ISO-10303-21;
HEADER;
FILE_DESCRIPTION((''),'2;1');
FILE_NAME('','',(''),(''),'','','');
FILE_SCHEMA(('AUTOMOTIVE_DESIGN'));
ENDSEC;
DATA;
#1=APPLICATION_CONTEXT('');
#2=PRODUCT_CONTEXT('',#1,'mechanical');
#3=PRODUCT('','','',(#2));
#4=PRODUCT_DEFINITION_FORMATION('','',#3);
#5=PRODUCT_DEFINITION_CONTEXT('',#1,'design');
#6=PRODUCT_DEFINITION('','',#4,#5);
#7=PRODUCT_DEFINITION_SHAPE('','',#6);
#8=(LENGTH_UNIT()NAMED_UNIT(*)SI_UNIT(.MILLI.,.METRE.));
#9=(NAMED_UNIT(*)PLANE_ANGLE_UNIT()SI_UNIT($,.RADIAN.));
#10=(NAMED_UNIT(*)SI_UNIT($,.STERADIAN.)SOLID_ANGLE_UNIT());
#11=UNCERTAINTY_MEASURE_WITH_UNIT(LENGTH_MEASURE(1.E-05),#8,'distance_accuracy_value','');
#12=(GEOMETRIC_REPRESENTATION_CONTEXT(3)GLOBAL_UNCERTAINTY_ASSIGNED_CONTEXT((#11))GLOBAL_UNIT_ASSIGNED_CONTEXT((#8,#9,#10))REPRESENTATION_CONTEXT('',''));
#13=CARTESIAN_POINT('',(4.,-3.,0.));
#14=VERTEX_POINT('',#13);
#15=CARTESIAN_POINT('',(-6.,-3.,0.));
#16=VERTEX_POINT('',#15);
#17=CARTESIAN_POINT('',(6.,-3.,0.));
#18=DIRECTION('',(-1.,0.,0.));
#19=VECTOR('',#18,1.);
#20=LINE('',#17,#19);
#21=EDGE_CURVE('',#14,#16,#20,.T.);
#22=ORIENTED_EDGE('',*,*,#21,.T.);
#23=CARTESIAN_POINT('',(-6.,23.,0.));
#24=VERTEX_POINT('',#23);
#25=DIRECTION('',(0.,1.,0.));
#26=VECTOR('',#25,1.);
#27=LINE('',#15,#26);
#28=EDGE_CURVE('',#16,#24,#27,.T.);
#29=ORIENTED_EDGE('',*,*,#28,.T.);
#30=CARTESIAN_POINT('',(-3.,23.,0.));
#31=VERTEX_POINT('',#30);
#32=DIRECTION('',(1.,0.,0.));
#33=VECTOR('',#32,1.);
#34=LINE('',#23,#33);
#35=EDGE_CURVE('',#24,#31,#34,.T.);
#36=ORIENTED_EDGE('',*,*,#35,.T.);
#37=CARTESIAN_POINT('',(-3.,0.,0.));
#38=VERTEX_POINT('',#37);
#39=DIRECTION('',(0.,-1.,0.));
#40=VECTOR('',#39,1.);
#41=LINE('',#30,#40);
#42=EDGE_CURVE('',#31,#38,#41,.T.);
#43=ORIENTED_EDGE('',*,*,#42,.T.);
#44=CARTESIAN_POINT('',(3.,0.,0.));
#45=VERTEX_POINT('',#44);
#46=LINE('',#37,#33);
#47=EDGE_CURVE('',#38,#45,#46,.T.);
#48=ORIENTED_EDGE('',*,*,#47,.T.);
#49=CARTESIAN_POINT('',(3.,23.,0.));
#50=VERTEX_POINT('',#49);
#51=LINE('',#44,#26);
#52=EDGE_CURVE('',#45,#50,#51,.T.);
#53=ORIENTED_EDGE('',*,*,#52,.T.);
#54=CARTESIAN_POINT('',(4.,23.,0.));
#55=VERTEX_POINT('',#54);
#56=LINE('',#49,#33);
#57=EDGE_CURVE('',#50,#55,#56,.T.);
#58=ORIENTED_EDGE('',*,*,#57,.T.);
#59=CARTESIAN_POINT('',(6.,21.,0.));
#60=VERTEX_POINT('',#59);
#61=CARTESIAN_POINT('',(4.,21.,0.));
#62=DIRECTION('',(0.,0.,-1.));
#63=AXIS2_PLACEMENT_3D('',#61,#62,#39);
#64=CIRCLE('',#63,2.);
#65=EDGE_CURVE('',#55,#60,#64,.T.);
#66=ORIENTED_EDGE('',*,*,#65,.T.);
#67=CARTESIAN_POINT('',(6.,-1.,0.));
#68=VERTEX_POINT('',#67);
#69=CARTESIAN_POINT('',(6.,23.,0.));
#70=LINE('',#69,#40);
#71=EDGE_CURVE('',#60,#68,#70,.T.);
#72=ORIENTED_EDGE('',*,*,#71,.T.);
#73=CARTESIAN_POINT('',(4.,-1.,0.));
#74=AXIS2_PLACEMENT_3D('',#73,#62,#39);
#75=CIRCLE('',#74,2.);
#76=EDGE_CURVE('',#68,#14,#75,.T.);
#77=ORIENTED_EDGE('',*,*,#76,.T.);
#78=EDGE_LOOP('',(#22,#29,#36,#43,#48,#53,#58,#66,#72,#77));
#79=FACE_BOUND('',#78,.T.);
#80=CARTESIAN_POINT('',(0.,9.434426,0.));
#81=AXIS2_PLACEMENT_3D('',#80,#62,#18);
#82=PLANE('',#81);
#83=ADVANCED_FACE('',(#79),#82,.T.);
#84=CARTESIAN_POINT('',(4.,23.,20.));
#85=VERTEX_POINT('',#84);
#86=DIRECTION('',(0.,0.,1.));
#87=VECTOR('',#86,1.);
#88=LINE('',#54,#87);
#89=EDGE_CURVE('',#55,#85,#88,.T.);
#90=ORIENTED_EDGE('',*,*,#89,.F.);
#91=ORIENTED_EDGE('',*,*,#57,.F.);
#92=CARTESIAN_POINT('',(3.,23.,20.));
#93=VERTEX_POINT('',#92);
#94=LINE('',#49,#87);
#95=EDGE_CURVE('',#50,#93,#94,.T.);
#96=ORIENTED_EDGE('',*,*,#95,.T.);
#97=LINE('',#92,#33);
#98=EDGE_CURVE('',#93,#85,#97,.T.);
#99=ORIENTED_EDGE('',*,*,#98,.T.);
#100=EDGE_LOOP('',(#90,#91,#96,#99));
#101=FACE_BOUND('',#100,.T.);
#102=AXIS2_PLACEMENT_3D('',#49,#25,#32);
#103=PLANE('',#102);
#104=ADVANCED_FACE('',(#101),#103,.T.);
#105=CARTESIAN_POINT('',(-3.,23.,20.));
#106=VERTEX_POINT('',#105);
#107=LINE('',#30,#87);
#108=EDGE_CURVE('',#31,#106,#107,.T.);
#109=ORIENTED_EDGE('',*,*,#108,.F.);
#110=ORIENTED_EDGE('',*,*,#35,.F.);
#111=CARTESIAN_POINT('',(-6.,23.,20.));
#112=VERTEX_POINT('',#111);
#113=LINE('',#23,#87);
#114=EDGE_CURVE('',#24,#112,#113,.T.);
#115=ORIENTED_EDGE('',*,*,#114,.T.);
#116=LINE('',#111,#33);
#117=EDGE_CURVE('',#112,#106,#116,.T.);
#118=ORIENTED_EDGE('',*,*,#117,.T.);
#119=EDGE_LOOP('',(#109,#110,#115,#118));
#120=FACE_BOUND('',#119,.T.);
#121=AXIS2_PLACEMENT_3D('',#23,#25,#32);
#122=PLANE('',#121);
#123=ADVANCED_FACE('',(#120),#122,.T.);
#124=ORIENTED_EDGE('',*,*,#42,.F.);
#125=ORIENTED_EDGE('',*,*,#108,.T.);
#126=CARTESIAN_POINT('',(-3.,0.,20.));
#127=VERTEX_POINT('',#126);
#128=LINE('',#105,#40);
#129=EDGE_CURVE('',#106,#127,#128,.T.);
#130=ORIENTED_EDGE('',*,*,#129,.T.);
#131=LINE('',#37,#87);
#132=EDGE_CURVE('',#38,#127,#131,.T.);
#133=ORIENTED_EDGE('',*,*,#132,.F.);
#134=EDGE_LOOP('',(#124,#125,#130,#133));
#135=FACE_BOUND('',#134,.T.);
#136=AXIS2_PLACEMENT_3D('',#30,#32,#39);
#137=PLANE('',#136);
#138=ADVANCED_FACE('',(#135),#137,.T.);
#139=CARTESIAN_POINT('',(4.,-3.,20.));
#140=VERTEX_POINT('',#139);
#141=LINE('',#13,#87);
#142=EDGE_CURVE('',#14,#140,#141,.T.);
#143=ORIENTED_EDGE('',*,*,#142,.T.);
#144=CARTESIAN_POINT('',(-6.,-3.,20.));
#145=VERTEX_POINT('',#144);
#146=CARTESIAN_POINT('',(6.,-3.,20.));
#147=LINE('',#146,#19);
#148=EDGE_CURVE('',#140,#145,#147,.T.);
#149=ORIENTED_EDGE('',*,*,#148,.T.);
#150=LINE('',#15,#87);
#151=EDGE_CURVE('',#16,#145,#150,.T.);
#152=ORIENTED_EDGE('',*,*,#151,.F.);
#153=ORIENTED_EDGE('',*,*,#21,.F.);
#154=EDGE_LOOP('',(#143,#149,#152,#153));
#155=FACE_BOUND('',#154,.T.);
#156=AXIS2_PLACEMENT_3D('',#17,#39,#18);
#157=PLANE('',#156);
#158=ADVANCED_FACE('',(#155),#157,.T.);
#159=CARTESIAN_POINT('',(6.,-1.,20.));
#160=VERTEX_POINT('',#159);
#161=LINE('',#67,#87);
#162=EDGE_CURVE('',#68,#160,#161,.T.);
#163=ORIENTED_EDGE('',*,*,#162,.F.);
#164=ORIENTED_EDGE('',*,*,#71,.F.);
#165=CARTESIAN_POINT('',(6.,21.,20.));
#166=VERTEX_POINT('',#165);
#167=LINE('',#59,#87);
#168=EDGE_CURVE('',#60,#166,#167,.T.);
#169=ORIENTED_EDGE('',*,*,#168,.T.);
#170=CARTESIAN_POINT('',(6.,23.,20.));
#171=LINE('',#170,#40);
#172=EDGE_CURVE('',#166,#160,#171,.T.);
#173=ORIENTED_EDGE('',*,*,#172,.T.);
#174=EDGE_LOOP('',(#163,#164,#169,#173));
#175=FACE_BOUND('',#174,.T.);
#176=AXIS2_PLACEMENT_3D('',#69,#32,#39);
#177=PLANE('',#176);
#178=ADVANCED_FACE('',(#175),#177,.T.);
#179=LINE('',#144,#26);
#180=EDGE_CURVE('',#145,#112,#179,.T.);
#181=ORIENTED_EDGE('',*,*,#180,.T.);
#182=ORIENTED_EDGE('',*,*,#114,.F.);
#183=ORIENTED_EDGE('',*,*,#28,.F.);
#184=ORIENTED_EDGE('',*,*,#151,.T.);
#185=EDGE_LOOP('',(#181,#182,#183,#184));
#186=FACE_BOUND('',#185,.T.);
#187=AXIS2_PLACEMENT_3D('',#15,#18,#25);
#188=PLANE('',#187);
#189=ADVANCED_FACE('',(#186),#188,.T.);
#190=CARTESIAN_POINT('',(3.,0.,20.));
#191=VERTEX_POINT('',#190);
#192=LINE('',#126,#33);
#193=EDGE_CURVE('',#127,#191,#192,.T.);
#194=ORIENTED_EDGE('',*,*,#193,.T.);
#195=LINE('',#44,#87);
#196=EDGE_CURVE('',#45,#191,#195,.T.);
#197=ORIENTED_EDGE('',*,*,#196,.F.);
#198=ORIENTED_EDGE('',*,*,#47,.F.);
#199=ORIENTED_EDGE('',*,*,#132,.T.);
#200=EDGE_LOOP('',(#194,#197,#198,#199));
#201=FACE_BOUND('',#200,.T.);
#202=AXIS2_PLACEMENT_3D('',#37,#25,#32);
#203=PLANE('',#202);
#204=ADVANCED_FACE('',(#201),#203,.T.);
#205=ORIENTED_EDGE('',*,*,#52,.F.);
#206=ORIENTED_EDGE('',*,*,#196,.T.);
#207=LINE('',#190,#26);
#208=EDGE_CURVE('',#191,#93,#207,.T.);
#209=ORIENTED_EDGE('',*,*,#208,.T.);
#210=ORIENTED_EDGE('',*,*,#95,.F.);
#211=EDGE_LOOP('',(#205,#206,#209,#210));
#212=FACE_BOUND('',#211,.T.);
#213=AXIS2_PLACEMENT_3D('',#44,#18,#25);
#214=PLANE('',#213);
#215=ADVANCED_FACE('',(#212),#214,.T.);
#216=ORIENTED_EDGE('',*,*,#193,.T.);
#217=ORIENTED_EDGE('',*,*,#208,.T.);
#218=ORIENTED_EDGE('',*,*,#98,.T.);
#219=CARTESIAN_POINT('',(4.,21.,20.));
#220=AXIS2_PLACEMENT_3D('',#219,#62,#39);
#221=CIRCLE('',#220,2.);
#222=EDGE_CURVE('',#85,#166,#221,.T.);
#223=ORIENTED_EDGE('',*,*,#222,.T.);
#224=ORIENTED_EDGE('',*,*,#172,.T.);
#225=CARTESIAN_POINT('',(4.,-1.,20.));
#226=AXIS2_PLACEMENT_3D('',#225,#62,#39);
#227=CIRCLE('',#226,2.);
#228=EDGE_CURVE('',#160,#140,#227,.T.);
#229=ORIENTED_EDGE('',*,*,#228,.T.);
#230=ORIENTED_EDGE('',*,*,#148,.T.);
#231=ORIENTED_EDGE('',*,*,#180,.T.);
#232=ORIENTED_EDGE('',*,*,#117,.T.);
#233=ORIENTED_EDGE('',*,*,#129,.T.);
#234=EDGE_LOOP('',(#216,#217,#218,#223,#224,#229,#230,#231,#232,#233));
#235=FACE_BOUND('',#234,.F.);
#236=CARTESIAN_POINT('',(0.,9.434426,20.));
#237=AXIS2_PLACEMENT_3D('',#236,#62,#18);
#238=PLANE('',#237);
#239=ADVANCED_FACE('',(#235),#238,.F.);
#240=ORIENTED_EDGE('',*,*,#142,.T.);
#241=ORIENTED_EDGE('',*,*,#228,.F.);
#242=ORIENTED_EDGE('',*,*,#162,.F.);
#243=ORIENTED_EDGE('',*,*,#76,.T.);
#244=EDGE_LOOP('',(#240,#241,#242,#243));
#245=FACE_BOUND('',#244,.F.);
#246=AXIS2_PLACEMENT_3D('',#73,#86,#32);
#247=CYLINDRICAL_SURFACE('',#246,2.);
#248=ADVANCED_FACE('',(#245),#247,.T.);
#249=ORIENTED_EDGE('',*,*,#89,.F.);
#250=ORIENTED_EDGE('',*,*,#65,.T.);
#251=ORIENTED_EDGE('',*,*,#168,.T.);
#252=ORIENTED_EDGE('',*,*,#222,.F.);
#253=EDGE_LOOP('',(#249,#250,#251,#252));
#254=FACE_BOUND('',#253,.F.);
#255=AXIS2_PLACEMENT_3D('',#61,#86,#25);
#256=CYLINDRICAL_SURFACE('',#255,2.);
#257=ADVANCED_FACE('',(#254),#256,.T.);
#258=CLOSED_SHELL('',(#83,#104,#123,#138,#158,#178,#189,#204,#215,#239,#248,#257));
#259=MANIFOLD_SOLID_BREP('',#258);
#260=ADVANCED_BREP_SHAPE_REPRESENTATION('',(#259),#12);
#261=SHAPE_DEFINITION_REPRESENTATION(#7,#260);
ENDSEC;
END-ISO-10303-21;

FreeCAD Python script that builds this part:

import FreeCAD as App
import Part
import Sketcher
from FreeCAD import Vector
Q = App.Units.Quantity


def edges_at(feature, points):
    """Names of the edges that pass closest to the given points."""
    edges = feature.Shape.Edges
    near = lambda p: min(range(len(edges)), key=lambda i: edges[i].distToShape(Part.Vertex(*p))[0])
    return sorted({f"Edge{near(p) + 1}" for p in points})


def add_polygon(sketch, points):
    """Adds a closed chain of lines whose ends are joined by coincident constraints."""
    first, n = sketch.GeometryCount, len(points)
    for a, b in zip(points, points[1:] + points[:1]):
        sketch.addGeometry(Part.LineSegment(App.Vector(*a, 0), App.Vector(*b, 0)), False)
    for i in range(n):
        sketch.addConstraint(Sketcher.Constraint("Coincident", first + i, 2, first + (i + 1) % n, 1))

doc = App.newDocument("Part")
body = doc.addObject("PartDesign::Body", "Body")

sketch1 = body.newObject("Sketcher::SketchObject", "Sketch")
sketch1.AttachmentSupport = (doc.getObject("XY_Plane"), [""])
sketch1.MapMode = "FlatFace"
add_polygon(sketch1, [(-3, 0), (-3, 23), (-6, 23), (-6, -3), (6, -3), (6, 23), (3, 23), (3, 0)])
sketch1.addConstraint([
    Sketcher.Constraint("Vertical", 0),
    Sketcher.Constraint("Horizontal", 1),
    Sketcher.Constraint("Vertical", 2),
    Sketcher.Constraint("Horizontal", 3),
    Sketcher.Constraint("Vertical", 4),
    Sketcher.Constraint("Horizontal", 5),
    Sketcher.Constraint("Vertical", 6),
    Sketcher.Constraint("Horizontal", 7),
    Sketcher.Constraint("Symmetric", 6, 2, 7, 2, -1, 1),
    Sketcher.Constraint("Symmetric", 1, 2, 4, 2, -2),
    Sketcher.Constraint("DistanceX", 1, 2, 1, 1, Q("3 mm")),
    Sketcher.Constraint("DistanceX", 3, 1, 3, 2, Q("12 mm")),
    Sketcher.Constraint("DistanceY", 0, 1, 0, 2, Q("23 mm")),
    Sketcher.Constraint("DistanceY", 2, 2, 2, 1, Q("26 mm")),
])
pad1 = body.newObject("PartDesign::Pad", "Pad")
pad1.Profile = sketch1
pad1.Length = 20
doc.recompute()

fillet = body.newObject("PartDesign::Fillet", "Fillet")
fillet.Base = (pad1, edges_at(pad1, [(6, -3, 10), (6, 23, 10)]))
fillet.Radius = 2

doc.recompute()
